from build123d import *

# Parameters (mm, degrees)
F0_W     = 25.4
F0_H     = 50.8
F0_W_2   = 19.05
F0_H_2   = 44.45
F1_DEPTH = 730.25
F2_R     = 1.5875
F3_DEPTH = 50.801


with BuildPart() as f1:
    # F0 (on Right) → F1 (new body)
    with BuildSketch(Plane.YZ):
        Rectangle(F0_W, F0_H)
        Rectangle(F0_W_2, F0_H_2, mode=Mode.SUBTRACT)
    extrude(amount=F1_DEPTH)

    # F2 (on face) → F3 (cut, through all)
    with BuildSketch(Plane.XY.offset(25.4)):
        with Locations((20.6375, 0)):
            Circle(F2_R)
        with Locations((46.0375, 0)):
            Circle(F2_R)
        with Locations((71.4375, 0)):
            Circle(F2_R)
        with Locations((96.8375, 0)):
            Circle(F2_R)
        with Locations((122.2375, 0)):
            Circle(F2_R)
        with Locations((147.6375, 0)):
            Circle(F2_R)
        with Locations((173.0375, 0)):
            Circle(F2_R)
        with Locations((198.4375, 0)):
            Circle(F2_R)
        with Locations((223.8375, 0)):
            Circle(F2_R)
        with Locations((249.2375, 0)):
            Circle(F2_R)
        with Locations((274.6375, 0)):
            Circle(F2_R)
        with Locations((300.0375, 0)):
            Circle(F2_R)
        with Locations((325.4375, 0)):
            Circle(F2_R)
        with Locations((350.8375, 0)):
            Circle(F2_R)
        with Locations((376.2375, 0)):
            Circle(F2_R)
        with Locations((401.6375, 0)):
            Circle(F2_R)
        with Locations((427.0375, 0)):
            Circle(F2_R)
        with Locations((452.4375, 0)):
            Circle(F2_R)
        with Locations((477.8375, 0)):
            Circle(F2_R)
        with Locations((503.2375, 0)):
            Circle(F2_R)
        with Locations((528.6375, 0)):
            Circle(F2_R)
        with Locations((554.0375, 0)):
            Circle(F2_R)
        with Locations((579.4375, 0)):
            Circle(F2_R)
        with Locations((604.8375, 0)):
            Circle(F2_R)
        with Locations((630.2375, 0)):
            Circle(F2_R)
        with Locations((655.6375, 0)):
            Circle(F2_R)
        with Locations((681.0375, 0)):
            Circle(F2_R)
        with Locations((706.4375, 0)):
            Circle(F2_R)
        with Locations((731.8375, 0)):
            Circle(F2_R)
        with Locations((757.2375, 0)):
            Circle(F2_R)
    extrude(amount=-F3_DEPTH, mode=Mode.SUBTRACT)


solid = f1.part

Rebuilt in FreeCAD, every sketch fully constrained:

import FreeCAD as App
import Part
import Sketcher

V = App.Vector
Q = App.Units.Quantity


def add_polygon(sketch, points):
    """Adds a closed chain of lines whose ends are joined by coincident constraints."""
    first, n = sketch.GeometryCount, len(points)
    for a, b in zip(points, points[1:] + points[:1]):
        sketch.addGeometry(Part.LineSegment(App.Vector(*a, 0), App.Vector(*b, 0)), False)
    for i in range(n):
        sketch.addConstraint(Sketcher.Constraint("Coincident", first + i, 2, first + (i + 1) % n, 1))

doc = App.newDocument("Part")
params = doc.addObject("Spreadsheet::Sheet", "Params")
for row, (alias, value) in enumerate([
    ("sketch1_width", "1 in"),
    ("sketch1_height", "2 in"),
    ("sketch1_width2", "0.75 in"),
    ("sketch1_height2", "1.75 in"),
    ("pad1_length", "28.75 in"),
    ("sketch2_diameter", "0.125 in"),
], start=1):
    params.set(f"A{row}", alias)
    params.set(f"B{row}", "=" + value)
    params.setAlias(f"B{row}", alias)

body = doc.addObject("PartDesign::Body", "Body")

# Sketch on YZ plane
sketch1 = body.newObject("Sketcher::SketchObject", "Sketch")
sketch1.AttachmentSupport = (doc.getObject("YZ_Plane"), [""])
sketch1.MapMode = "FlatFace"
add_polygon(sketch1, [(-13, 25), (-13, -25), (13, -25), (13, 25)])  # lines 0-3
add_polygon(sketch1, [(10, -22), (-10, -22), (-10, 22), (10, 22)])  # lines 4-7
sketch1.addConstraint(Sketcher.Constraint("Vertical", 0))
sketch1.addConstraint(Sketcher.Constraint("Horizontal", 1))
sketch1.addConstraint(Sketcher.Constraint("Vertical", 2))
sketch1.addConstraint(Sketcher.Constraint("Horizontal", 3))
sketch1.addConstraint(Sketcher.Constraint("Horizontal", 4))
sketch1.addConstraint(Sketcher.Constraint("Vertical", 5))
sketch1.addConstraint(Sketcher.Constraint("Horizontal", 6))
sketch1.addConstraint(Sketcher.Constraint("Vertical", 7))
sketch1.addConstraint(Sketcher.Constraint("Symmetric", 0, 2, 2, 2, -1, 1))
sketch1.addConstraint(Sketcher.Constraint("Symmetric", 4, 2, 6, 2, -1, 1))
sketch1.addConstraint(Sketcher.Constraint("DistanceX", 1, 1, 1, 2, Q("1 in")))
sketch1.addConstraint(Sketcher.Constraint("DistanceY", 0, 2, 0, 1, Q("2 in")))
sketch1.addConstraint(Sketcher.Constraint("DistanceX", 4, 2, 4, 1, Q("0.75 in")))
sketch1.addConstraint(Sketcher.Constraint("DistanceY", 5, 1, 5, 2, Q("1.75 in")))
sketch1.setExpression("Constraints[18]", "Params.sketch1_width")
sketch1.setExpression("Constraints[19]", "Params.sketch1_height")
sketch1.setExpression("Constraints[20]", "Params.sketch1_width2")
sketch1.setExpression("Constraints[21]", "Params.sketch1_height2")
pad1 = body.newObject("PartDesign::Pad", "Pad")
pad1.Profile = sketch1
pad1.setExpression("Length", "Params.pad1_length")

# Sketch on XY plane
sketch2 = body.newObject("Sketcher::SketchObject", "Sketch001")
sketch2.AttachmentSupport = (doc.getObject("XY_Plane"), [""])
sketch2.MapMode = "FlatFace"
sketch2.AttachmentOffset = App.Placement(V(0, 0, 1 * 25.4), App.Rotation())
sketch2.addGeometry(Part.Circle(V(20.6, 0, 0), V(0, 0, 1), 1.6), False)
sketch2.addGeometry(Part.Circle(V(46, 0, 0), V(0, 0, 1), 1.6), False)
sketch2.addGeometry(Part.Circle(V(71.4, 0, 0), V(0, 0, 1), 1.6), False)
sketch2.addGeometry(Part.Circle(V(96.8, 0, 0), V(0, 0, 1), 1.6), False)
sketch2.addGeometry(Part.Circle(V(122.2, 0, 0), V(0, 0, 1), 1.6), False)
sketch2.addGeometry(Part.Circle(V(147.6, 0, 0), V(0, 0, 1), 1.6), False)
sketch2.addGeometry(Part.Circle(V(173, 0, 0), V(0, 0, 1), 1.6), False)
sketch2.addGeometry(Part.Circle(V(198.4, 0, 0), V(0, 0, 1), 1.6), False)
sketch2.addGeometry(Part.Circle(V(223.8, 0, 0), V(0, 0, 1), 1.6), False)
sketch2.addGeometry(Part.Circle(V(249.2, 0, 0), V(0, 0, 1), 1.6), False)
sketch2.addGeometry(Part.Circle(V(274.6, 0, 0), V(0, 0, 1), 1.6), False)
sketch2.addGeometry(Part.Circle(V(300, 0, 0), V(0, 0, 1), 1.6), False)
sketch2.addGeometry(Part.Circle(V(325.4, 0, 0), V(0, 0, 1), 1.6), False)
sketch2.addGeometry(Part.Circle(V(350.8, 0, 0), V(0, 0, 1), 1.6), False)
sketch2.addGeometry(Part.Circle(V(376.2, 0, 0), V(0, 0, 1), 1.6), False)
sketch2.addGeometry(Part.Circle(V(401.6, 0, 0), V(0, 0, 1), 1.6), False)
sketch2.addGeometry(Part.Circle(V(427, 0, 0), V(0, 0, 1), 1.6), False)
sketch2.addGeometry(Part.Circle(V(452.4, 0, 0), V(0, 0, 1), 1.6), False)
sketch2.addGeometry(Part.Circle(V(477.8, 0, 0), V(0, 0, 1), 1.6), False)
sketch2.addGeometry(Part.Circle(V(503.2, 0, 0), V(0, 0, 1), 1.6), False)
sketch2.addGeometry(Part.Circle(V(528.6, 0, 0), V(0, 0, 1), 1.6), False)
sketch2.addGeometry(Part.Circle(V(554, 0, 0), V(0, 0, 1), 1.6), False)
sketch2.addGeometry(Part.Circle(V(579.4, 0, 0), V(0, 0, 1), 1.6), False)
sketch2.addGeometry(Part.Circle(V(604.8, 0, 0), V(0, 0, 1), 1.6), False)
sketch2.addGeometry(Part.Circle(V(630.2, 0, 0), V(0, 0, 1), 1.6), False)
sketch2.addGeometry(Part.Circle(V(655.6, 0, 0), V(0, 0, 1), 1.6), False)
sketch2.addGeometry(Part.Circle(V(681, 0, 0), V(0, 0, 1), 1.6), False)
sketch2.addGeometry(Part.Circle(V(706.4, 0, 0), V(0, 0, 1), 1.6), False)
sketch2.addGeometry(Part.Circle(V(731.8, 0, 0), V(0, 0, 1), 1.6), False)
sketch2.addGeometry(Part.Circle(V(757.2, 0, 0), V(0, 0, 1), 1.6), False)
sketch2.addConstraint(Sketcher.Constraint("Equal", 0, 1))
sketch2.addConstraint(Sketcher.Constraint("Equal", 1, 2))
sketch2.addConstraint(Sketcher.Constraint("Equal", 2, 3))
sketch2.addConstraint(Sketcher.Constraint("Equal", 3, 4))
sketch2.addConstraint(Sketcher.Constraint("Equal", 4, 5))
sketch2.addConstraint(Sketcher.Constraint("Equal", 5, 6))
sketch2.addConstraint(Sketcher.Constraint("Equal", 6, 7))
sketch2.addConstraint(Sketcher.Constraint("Equal", 7, 8))
sketch2.addConstraint(Sketcher.Constraint("Equal", 8, 9))
sketch2.addConstraint(Sketcher.Constraint("Equal", 9, 10))
sketch2.addConstraint(Sketcher.Constraint("Equal", 10, 11))
sketch2.addConstraint(Sketcher.Constraint("Equal", 11, 12))
sketch2.addConstraint(Sketcher.Constraint("Equal", 12, 13))
sketch2.addConstraint(Sketcher.Constraint("Equal", 13, 14))
sketch2.addConstraint(Sketcher.Constraint("Equal", 14, 15))
sketch2.addConstraint(Sketcher.Constraint("Equal", 15, 16))
sketch2.addConstraint(Sketcher.Constraint("Equal", 16, 17))
sketch2.addConstraint(Sketcher.Constraint("Equal", 17, 18))
sketch2.addConstraint(Sketcher.Constraint("Equal", 18, 19))
sketch2.addConstraint(Sketcher.Constraint("Equal", 19, 20))
sketch2.addConstraint(Sketcher.Constraint("Equal", 20, 21))
sketch2.addConstraint(Sketcher.Constraint("Equal", 21, 22))
sketch2.addConstraint(Sketcher.Constraint("Equal", 22, 23))
sketch2.addConstraint(Sketcher.Constraint("Equal", 23, 24))
sketch2.addConstraint(Sketcher.Constraint("Equal", 24, 25))
sketch2.addConstraint(Sketcher.Constraint("Equal", 25, 26))
sketch2.addConstraint(Sketcher.Constraint("Equal", 26, 27))
sketch2.addConstraint(Sketcher.Constraint("Equal", 27, 28))
sketch2.addConstraint(Sketcher.Constraint("Equal", 28, 29))
sketch2.addConstraint(Sketcher.Constraint("PointOnObject", 0, 3, -1))
sketch2.addConstraint(Sketcher.Constraint("PointOnObject", 1, 3, -1))
sketch2.addConstraint(Sketcher.Constraint("PointOnObject", 2, 3, -1))
sketch2.addConstraint(Sketcher.Constraint("PointOnObject", 3, 3, -1))
sketch2.addConstraint(Sketcher.Constraint("PointOnObject", 4, 3, -1))
sketch2.addConstraint(Sketcher.Constraint("PointOnObject", 5, 3, -1))
sketch2.addConstraint(Sketcher.Constraint("PointOnObject", 6, 3, -1))
sketch2.addConstraint(Sketcher.Constraint("PointOnObject", 7, 3, -1))
sketch2.addConstraint(Sketcher.Constraint("PointOnObject", 8, 3, -1))
sketch2.addConstraint(Sketcher.Constraint("PointOnObject", 9, 3, -1))
sketch2.addConstraint(Sketcher.Constraint("PointOnObject", 10, 3, -1))
sketch2.addConstraint(Sketcher.Constraint("PointOnObject", 11, 3, -1))
sketch2.addConstraint(Sketcher.Constraint("PointOnObject", 12, 3, -1))
sketch2.addConstraint(Sketcher.Constraint("PointOnObject", 13, 3, -1))
sketch2.addConstraint(Sketcher.Constraint("PointOnObject", 14, 3, -1))
sketch2.addConstraint(Sketcher.Constraint("PointOnObject", 15, 3, -1))
sketch2.addConstraint(Sketcher.Constraint("PointOnObject", 16, 3, -1))
sketch2.addConstraint(Sketcher.Constraint("PointOnObject", 17, 3, -1))
sketch2.addConstraint(Sketcher.Constraint("PointOnObject", 18, 3, -1))
sketch2.addConstraint(Sketcher.Constraint("PointOnObject", 19, 3, -1))
sketch2.addConstraint(Sketcher.Constraint("PointOnObject", 20, 3, -1))
sketch2.addConstraint(Sketcher.Constraint("PointOnObject", 21, 3, -1))
sketch2.addConstraint(Sketcher.Constraint("PointOnObject", 22, 3, -1))
sketch2.addConstraint(Sketcher.Constraint("PointOnObject", 23, 3, -1))
sketch2.addConstraint(Sketcher.Constraint("PointOnObject", 24, 3, -1))
sketch2.addConstraint(Sketcher.Constraint("PointOnObject", 25, 3, -1))
sketch2.addConstraint(Sketcher.Constraint("PointOnObject", 26, 3, -1))
sketch2.addConstraint(Sketcher.Constraint("PointOnObject", 27, 3, -1))
sketch2.addConstraint(Sketcher.Constraint("PointOnObject", 28, 3, -1))
sketch2.addConstraint(Sketcher.Constraint("PointOnObject", 29, 3, -1))
sketch2.addConstraint(Sketcher.Constraint("Diameter", 0, Q("0.125 in")))
sketch2.addConstraint(Sketcher.Constraint("DistanceX", 0, 3, 1, 3, Q("1 in")))
sketch2.addConstraint(Sketcher.Constraint("DistanceX", 1, 3, 2, 3, Q("1 in")))
sketch2.addConstraint(Sketcher.Constraint("DistanceX", 2, 3, 3, 3, Q("1 in")))
sketch2.addConstraint(Sketcher.Constraint("DistanceX", 3, 3, 4, 3, Q("1 in")))
sketch2.addConstraint(Sketcher.Constraint("DistanceX", 4, 3, 5, 3, Q("1 in")))
sketch2.addConstraint(Sketcher.Constraint("DistanceX", 5, 3, 6, 3, Q("1 in")))
sketch2.addConstraint(Sketcher.Constraint("DistanceX", 6, 3, 7, 3, Q("1 in")))
sketch2.addConstraint(Sketcher.Constraint("DistanceX", 7, 3, 8, 3, Q("1 in")))
sketch2.addConstraint(Sketcher.Constraint("DistanceX", 8, 3, 9, 3, Q("1 in")))
sketch2.addConstraint(Sketcher.Constraint("DistanceX", 9, 3, 10, 3, Q("1 in")))
sketch2.addConstraint(Sketcher.Constraint("DistanceX", 10, 3, 11, 3, Q("1 in")))
sketch2.addConstraint(Sketcher.Constraint("DistanceX", 11, 3, 12, 3, Q("1 in")))
sketch2.addConstraint(Sketcher.Constraint("DistanceX", 12, 3, 13, 3, Q("1 in")))
sketch2.addConstraint(Sketcher.Constraint("DistanceX", 13, 3, 14, 3, Q("1 in")))
sketch2.addConstraint(Sketcher.Constraint("DistanceX", 14, 3, 15, 3, Q("1 in")))
sketch2.addConstraint(Sketcher.Constraint("DistanceX", 15, 3, 16, 3, Q("1 in")))
sketch2.addConstraint(Sketcher.Constraint("DistanceX", 16, 3, 17, 3, Q("1 in")))
sketch2.addConstraint(Sketcher.Constraint("DistanceX", 17, 3, 18, 3, Q("1 in")))
sketch2.addConstraint(Sketcher.Constraint("DistanceX", 18, 3, 19, 3, Q("1 in")))
sketch2.addConstraint(Sketcher.Constraint("DistanceX", 19, 3, 20, 3, Q("1 in")))
sketch2.addConstraint(Sketcher.Constraint("DistanceX", 20, 3, 21, 3, Q("1 in")))
sketch2.addConstraint(Sketcher.Constraint("DistanceX", 21, 3, 22, 3, Q("1 in")))
sketch2.addConstraint(Sketcher.Constraint("DistanceX", 22, 3, 23, 3, Q("1 in")))
sketch2.addConstraint(Sketcher.Constraint("DistanceX", 23, 3, 24, 3, Q("1 in")))
sketch2.addConstraint(Sketcher.Constraint("DistanceX", 24, 3, 25, 3, Q("1 in")))
sketch2.addConstraint(Sketcher.Constraint("DistanceX", 25, 3, 26, 3, Q("1 in")))
sketch2.addConstraint(Sketcher.Constraint("DistanceX", 26, 3, 27, 3, Q("1 in")))
sketch2.addConstraint(Sketcher.Constraint("DistanceX", 27, 3, 28, 3, Q("1 in")))
sketch2.addConstraint(Sketcher.Constraint("DistanceX", 28, 3, 29, 3, Q("1 in")))
sketch2.addConstraint(Sketcher.Constraint("DistanceX", -1, 1, 0, 3, Q("0.8125 in")))
sketch2.setExpression("Constraints[59]", "Params.sketch2_diameter")
pocket1 = body.newObject("PartDesign::Pocket", "Pocket")
pocket1.Profile = sketch2
pocket1.Type = "ThroughAll"

doc.recompute()
